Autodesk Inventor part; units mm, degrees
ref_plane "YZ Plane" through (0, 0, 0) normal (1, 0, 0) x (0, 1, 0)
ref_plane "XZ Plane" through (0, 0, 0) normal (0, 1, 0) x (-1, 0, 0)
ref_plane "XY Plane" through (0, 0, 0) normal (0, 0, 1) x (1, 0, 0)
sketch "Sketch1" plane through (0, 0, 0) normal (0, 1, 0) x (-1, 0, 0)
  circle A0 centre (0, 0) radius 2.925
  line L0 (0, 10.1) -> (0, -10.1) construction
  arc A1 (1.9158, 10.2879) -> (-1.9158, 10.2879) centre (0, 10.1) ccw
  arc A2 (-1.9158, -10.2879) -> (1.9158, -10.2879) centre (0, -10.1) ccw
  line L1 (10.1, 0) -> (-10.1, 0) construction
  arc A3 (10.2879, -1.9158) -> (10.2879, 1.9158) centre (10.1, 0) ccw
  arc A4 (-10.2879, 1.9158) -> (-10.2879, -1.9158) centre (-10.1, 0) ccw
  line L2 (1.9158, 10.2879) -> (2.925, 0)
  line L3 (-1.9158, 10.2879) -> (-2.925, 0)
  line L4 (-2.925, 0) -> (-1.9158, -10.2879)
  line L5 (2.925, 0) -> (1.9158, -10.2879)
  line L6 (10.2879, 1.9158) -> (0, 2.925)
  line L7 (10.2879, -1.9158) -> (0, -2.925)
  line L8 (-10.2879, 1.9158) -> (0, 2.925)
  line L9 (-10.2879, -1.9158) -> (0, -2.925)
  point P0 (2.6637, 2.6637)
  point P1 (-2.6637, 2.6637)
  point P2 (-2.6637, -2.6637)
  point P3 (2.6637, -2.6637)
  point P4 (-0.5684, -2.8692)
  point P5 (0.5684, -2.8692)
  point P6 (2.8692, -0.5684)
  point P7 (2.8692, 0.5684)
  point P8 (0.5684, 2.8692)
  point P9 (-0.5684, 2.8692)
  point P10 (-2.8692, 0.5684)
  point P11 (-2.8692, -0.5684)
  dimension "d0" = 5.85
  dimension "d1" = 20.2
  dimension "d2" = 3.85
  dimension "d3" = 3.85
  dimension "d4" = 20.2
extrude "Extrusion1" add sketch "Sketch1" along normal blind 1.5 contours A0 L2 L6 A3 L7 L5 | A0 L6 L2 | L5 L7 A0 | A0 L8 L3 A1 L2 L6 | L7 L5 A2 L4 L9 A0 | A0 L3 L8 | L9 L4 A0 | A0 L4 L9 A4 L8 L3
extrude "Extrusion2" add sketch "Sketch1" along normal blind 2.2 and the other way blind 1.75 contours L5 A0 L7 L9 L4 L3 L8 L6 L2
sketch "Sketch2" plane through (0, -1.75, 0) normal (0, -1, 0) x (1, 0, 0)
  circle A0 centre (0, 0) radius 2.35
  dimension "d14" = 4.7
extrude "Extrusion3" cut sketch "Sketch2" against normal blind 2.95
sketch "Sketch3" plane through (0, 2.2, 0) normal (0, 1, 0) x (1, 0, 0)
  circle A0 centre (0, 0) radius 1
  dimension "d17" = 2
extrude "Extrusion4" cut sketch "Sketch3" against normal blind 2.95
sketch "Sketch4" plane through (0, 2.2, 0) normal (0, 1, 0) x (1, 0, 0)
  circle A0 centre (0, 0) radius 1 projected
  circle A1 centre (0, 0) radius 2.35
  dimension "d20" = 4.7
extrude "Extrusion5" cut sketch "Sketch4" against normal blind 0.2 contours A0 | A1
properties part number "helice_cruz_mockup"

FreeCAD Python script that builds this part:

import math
import FreeCAD as App
import Part
import Sketcher

V = App.Vector

doc = App.newDocument("Part")
params = doc.addObject("Spreadsheet::Sheet", "Params")
for row, (alias, value) in enumerate([
    ("sketch1_diameter", "5.85 mm"),
    ("pad1_length", "1.5 mm"),
    ("pad2_length", "2.2 mm"),
    ("pad2_length2", "1.75 mm"),
    ("sketch3_diameter", "4.7 mm"),
    ("pocket1_length", "2.95 mm"),
    ("sketch4_diameter", "2 mm"),
    ("pocket2_length", "2.95 mm"),
    ("sketch5_diameter", "4.7 mm"),
    ("pocket3_length", "0.2 mm"),
], start=1):
    params.set(f"A{row}", alias)
    params.set(f"B{row}", "=" + value)
    params.setAlias(f"B{row}", alias)

body = doc.addObject("PartDesign::Body", "Body")

sketch1 = body.newObject("Sketcher::SketchObject", "Sketch")
sketch1.AttachmentSupport = (doc.getObject("XZ_Plane"), [""])
sketch1.MapMode = "FlatFace"
sketch1.addGeometry([
    Part.LineSegment(V(-10.2879, 1.9158, 0), V(-2.663702, 2.663702, 0)),
    Part.LineSegment(V(-2.663702, 2.663702, 0), V(-1.9158, 10.2879, 0)),
    Part.ArcOfCircle(Part.Circle(V(0, 10.1, 0), V(0, 0, 1), 1.924992), math.radians(5.601605), math.radians(174.398395)),
    Part.LineSegment(V(1.9158, 10.2879, 0), V(2.663702, 2.663702, 0)),
    Part.LineSegment(V(2.663702, 2.663702, 0), V(10.2879, 1.9158, 0)),
    Part.ArcOfCircle(Part.Circle(V(10.1, 0, 0), V(0, 0, 1), 1.924992), math.radians(-84.398395), math.radians(84.398395)),
    Part.LineSegment(V(10.2879, -1.9158, 0), V(2.663702, -2.663702, 0)),
    Part.LineSegment(V(2.663702, -2.663702, 0), V(1.9158, -10.2879, 0)),
    Part.ArcOfCircle(Part.Circle(V(0, -10.1, 0), V(0, 0, 1), 1.924992), math.radians(-174.398395), math.radians(-5.601605)),
    Part.LineSegment(V(-1.9158, -10.2879, 0), V(-2.663702, -2.663702, 0)),
    Part.LineSegment(V(-2.663702, -2.663702, 0), V(-10.2879, -1.9158, 0)),
    Part.ArcOfCircle(Part.Circle(V(-10.1, 0, 0), V(0, 0, 1), 1.924992), math.radians(95.601605), math.radians(264.398395)),
    Part.Circle(V(0, 0, 0), V(0, 0, 1), 2.925),
], False)
sketch1.addConstraint([
    Sketcher.Constraint("Coincident", 0, 2, 1, 1),
    Sketcher.Constraint("Tangent", 1, 2, 2, 2),
    Sketcher.Constraint("Tangent", 2, 1, 3, 1),
    Sketcher.Constraint("Coincident", 3, 2, 4, 1),
    Sketcher.Constraint("Tangent", 4, 2, 5, 2),
    Sketcher.Constraint("Tangent", 5, 1, 6, 1),
    Sketcher.Constraint("Coincident", 6, 2, 7, 1),
    Sketcher.Constraint("Tangent", 7, 2, 8, 2),
    Sketcher.Constraint("Tangent", 8, 1, 9, 1),
    Sketcher.Constraint("Coincident", 9, 2, 10, 1),
    Sketcher.Constraint("Tangent", 10, 2, 11, 2),
    Sketcher.Constraint("Tangent", 11, 1, 0, 1),
    Sketcher.Constraint("Coincident", 12, 3, -1, 1),
    Sketcher.Constraint("Equal", 2, 5),
    Sketcher.Constraint("Equal", 5, 8),
    Sketcher.Constraint("Equal", 8, 11),
    Sketcher.Constraint("Symmetric", 2, 3, 8, 3, -1, 1),
    Sketcher.Constraint("Symmetric", 5, 3, 11, 3, -1, 1),
    Sketcher.Constraint("Symmetric", 0, 2, 6, 2, -1, 1),
    Sketcher.Constraint("Symmetric", 3, 2, 9, 2, -1, 1),
    Sketcher.Constraint("Symmetric", 1, 2, 2, 1, -2),
    Sketcher.Constraint("Symmetric", 5, 1, 10, 2, -2),
    Sketcher.Constraint("Perpendicular", 0, 3),
    Sketcher.Constraint("Equal", 0, 1),
    Sketcher.Constraint("Diameter", 12, 5.85),
    Sketcher.Constraint("Radius", 2, 1.925),
    Sketcher.Constraint("DistanceY", 8, 3, 2, 3, 20.2),
    Sketcher.Constraint("DistanceY", -1, 1, 1, 2, 10.288),
])
sketch1.setExpression("Constraints[24]", "Params.sketch1_diameter")
pad1 = body.newObject("PartDesign::Pad", "Pad")
pad1.Profile = sketch1
pad1.setExpression("Length", "Params.pad1_length")
pad1.Reversed = True

sketch2 = body.newObject("Sketcher::SketchObject", "Sketch001")
sketch2.AttachmentSupport = (doc.getObject("XZ_Plane"), [""])
sketch2.MapMode = "FlatFace"
sketch2.addGeometry([
    Part.LineSegment(V(-2.869243, -0.568391, 0), V(-2.925, 0, 0)),
    Part.LineSegment(V(-2.925, 0, 0), V(-2.869243, 0.568391, 0)),
    Part.ArcOfCircle(Part.Circle(V(0, 0, 0), V(0, 0, 1), 2.925), math.radians(101.205103), math.radians(168.794897)),
    Part.LineSegment(V(-0.568391, 2.869243, 0), V(0, 2.925, 0)),
    Part.LineSegment(V(0, 2.925, 0), V(0.568391, 2.869243, 0)),
    Part.ArcOfCircle(Part.Circle(V(0, 0, 0), V(0, 0, 1), 2.925), math.radians(11.205103), math.radians(78.794897)),
    Part.LineSegment(V(2.869243, 0.568391, 0), V(2.925, 0, 0)),
    Part.LineSegment(V(2.925, 0, 0), V(2.869243, -0.568391, 0)),
    Part.ArcOfCircle(Part.Circle(V(0, 0, 0), V(0, 0, 1), 2.925), math.radians(-78.794897), math.radians(-11.205103)),
    Part.LineSegment(V(0.568391, -2.869243, 0), V(0, -2.925, 0)),
    Part.LineSegment(V(0, -2.925, 0), V(-0.568391, -2.869243, 0)),
    Part.ArcOfCircle(Part.Circle(V(0, 0, 0), V(0, 0, 1), 2.925), math.radians(-168.794897), math.radians(-101.205103)),
], False)
sketch2.addConstraint([
    Sketcher.Constraint("Coincident", 0, 2, 1, 1),
    Sketcher.Constraint("Coincident", 1, 2, 2, 2),
    Sketcher.Constraint("Coincident", 2, 1, 3, 1),
    Sketcher.Constraint("Coincident", 3, 2, 4, 1),
    Sketcher.Constraint("Coincident", 4, 2, 5, 2),
    Sketcher.Constraint("Coincident", 5, 1, 6, 1),
    Sketcher.Constraint("Coincident", 6, 2, 7, 1),
    Sketcher.Constraint("Coincident", 7, 2, 8, 2),
    Sketcher.Constraint("Coincident", 8, 1, 9, 1),
    Sketcher.Constraint("Coincident", 9, 2, 10, 1),
    Sketcher.Constraint("Coincident", 10, 2, 11, 2),
    Sketcher.Constraint("Coincident", 11, 1, 0, 1),
    Sketcher.Constraint("Coincident", 2, 3, -1, 1),
    Sketcher.Constraint("Coincident", 5, 3, -1, 1),
    Sketcher.Constraint("Coincident", 8, 3, -1, 1),
    Sketcher.Constraint("Coincident", 11, 3, -1, 1),
    Sketcher.Constraint("Equal", 2, 5),
    Sketcher.Constraint("Equal", 5, 8),
    Sketcher.Constraint("Equal", 8, 11),
    Sketcher.Constraint("Symmetric", 0, 2, 6, 2, -1, 1),
    Sketcher.Constraint("Symmetric", 3, 2, 9, 2, -1, 1),
    Sketcher.Constraint("PointOnObject", 0, 2, -1),
    Sketcher.Constraint("PointOnObject", 3, 2, -2),
    Sketcher.Constraint("Perpendicular", 0, 3),
    Sketcher.Constraint("Perpendicular", 1, 4),
    Sketcher.Constraint("Perpendicular", 3, 6),
    Sketcher.Constraint("Perpendicular", 4, 7),
    Sketcher.Constraint("Perpendicular", 6, 9),
    Sketcher.Constraint("Perpendicular", 7, 10),
    Sketcher.Constraint("Horizontal", 2, 1, 4, 2),
    Sketcher.Constraint("Equal", 1, 3),
    Sketcher.Constraint("Radius", 2, 2.925),
    Sketcher.Constraint("Distance", 0, 0.571),
    Sketcher.Constraint("DistanceX", 0, 2, -1, 1, 2.925),
])
pad2 = body.newObject("PartDesign::Pad", "Pad001")
pad2.Profile = sketch2
pad2.Type = "TwoLengths"
pad2.setExpression("Length", "Params.pad2_length")
pad2.setExpression("Length2", "Params.pad2_length2")
pad2.Reversed = True

sketch3 = body.newObject("Sketcher::SketchObject", "Sketch002")
sketch3.AttachmentSupport = (doc.getObject("XZ_Plane"), [""])
sketch3.MapMode = "FlatFace"
sketch3.AttachmentOffset = App.Placement(V(0, 0, 1.75), App.Rotation())
sketch3.addGeometry(Part.Circle(V(0, 0, 0), V(0, 0, 1), 2.35), False)
sketch3.addConstraint([
    Sketcher.Constraint("Coincident", 0, 3, -1, 1),
    Sketcher.Constraint("Diameter", 0, 4.7),
])
sketch3.setExpression("Constraints[1]", "Params.sketch3_diameter")
pocket1 = body.newObject("PartDesign::Pocket", "Pocket")
pocket1.Profile = sketch3
pocket1.setExpression("Length", "Params.pocket1_length")

sketch4 = body.newObject("Sketcher::SketchObject", "Sketch003")
sketch4.AttachmentSupport = (doc.getObject("XZ_Plane"), [""])
sketch4.MapMode = "FlatFace"
sketch4.AttachmentOffset = App.Placement(V(0, 0, -2.2), App.Rotation())
sketch4.addGeometry(Part.Circle(V(0, 0, 0), V(0, 0, 1), 1), False)
sketch4.addConstraint([
    Sketcher.Constraint("Coincident", 0, 3, -1, 1),
    Sketcher.Constraint("Diameter", 0, 2.0),
])
sketch4.setExpression("Constraints[1]", "Params.sketch4_diameter")
pocket2 = body.newObject("PartDesign::Pocket", "Pocket001")
pocket2.Profile = sketch4
pocket2.setExpression("Length", "Params.pocket2_length")
pocket2.Reversed = True

sketch5 = body.newObject("Sketcher::SketchObject", "Sketch004")
sketch5.AttachmentSupport = (doc.getObject("XZ_Plane"), [""])
sketch5.MapMode = "FlatFace"
sketch5.AttachmentOffset = App.Placement(V(0, 0, -2.2), App.Rotation())
sketch5.addGeometry(Part.Circle(V(0, 0, 0), V(0, 0, 1), 2.35), False)
sketch5.addConstraint([
    Sketcher.Constraint("Coincident", 0, 3, -1, 1),
    Sketcher.Constraint("Diameter", 0, 4.7),
])
sketch5.setExpression("Constraints[1]", "Params.sketch5_diameter")
pocket3 = body.newObject("PartDesign::Pocket", "Pocket002")
pocket3.Profile = sketch5
pocket3.setExpression("Length", "Params.pocket3_length")
pocket3.Reversed = True

doc.recompute()
